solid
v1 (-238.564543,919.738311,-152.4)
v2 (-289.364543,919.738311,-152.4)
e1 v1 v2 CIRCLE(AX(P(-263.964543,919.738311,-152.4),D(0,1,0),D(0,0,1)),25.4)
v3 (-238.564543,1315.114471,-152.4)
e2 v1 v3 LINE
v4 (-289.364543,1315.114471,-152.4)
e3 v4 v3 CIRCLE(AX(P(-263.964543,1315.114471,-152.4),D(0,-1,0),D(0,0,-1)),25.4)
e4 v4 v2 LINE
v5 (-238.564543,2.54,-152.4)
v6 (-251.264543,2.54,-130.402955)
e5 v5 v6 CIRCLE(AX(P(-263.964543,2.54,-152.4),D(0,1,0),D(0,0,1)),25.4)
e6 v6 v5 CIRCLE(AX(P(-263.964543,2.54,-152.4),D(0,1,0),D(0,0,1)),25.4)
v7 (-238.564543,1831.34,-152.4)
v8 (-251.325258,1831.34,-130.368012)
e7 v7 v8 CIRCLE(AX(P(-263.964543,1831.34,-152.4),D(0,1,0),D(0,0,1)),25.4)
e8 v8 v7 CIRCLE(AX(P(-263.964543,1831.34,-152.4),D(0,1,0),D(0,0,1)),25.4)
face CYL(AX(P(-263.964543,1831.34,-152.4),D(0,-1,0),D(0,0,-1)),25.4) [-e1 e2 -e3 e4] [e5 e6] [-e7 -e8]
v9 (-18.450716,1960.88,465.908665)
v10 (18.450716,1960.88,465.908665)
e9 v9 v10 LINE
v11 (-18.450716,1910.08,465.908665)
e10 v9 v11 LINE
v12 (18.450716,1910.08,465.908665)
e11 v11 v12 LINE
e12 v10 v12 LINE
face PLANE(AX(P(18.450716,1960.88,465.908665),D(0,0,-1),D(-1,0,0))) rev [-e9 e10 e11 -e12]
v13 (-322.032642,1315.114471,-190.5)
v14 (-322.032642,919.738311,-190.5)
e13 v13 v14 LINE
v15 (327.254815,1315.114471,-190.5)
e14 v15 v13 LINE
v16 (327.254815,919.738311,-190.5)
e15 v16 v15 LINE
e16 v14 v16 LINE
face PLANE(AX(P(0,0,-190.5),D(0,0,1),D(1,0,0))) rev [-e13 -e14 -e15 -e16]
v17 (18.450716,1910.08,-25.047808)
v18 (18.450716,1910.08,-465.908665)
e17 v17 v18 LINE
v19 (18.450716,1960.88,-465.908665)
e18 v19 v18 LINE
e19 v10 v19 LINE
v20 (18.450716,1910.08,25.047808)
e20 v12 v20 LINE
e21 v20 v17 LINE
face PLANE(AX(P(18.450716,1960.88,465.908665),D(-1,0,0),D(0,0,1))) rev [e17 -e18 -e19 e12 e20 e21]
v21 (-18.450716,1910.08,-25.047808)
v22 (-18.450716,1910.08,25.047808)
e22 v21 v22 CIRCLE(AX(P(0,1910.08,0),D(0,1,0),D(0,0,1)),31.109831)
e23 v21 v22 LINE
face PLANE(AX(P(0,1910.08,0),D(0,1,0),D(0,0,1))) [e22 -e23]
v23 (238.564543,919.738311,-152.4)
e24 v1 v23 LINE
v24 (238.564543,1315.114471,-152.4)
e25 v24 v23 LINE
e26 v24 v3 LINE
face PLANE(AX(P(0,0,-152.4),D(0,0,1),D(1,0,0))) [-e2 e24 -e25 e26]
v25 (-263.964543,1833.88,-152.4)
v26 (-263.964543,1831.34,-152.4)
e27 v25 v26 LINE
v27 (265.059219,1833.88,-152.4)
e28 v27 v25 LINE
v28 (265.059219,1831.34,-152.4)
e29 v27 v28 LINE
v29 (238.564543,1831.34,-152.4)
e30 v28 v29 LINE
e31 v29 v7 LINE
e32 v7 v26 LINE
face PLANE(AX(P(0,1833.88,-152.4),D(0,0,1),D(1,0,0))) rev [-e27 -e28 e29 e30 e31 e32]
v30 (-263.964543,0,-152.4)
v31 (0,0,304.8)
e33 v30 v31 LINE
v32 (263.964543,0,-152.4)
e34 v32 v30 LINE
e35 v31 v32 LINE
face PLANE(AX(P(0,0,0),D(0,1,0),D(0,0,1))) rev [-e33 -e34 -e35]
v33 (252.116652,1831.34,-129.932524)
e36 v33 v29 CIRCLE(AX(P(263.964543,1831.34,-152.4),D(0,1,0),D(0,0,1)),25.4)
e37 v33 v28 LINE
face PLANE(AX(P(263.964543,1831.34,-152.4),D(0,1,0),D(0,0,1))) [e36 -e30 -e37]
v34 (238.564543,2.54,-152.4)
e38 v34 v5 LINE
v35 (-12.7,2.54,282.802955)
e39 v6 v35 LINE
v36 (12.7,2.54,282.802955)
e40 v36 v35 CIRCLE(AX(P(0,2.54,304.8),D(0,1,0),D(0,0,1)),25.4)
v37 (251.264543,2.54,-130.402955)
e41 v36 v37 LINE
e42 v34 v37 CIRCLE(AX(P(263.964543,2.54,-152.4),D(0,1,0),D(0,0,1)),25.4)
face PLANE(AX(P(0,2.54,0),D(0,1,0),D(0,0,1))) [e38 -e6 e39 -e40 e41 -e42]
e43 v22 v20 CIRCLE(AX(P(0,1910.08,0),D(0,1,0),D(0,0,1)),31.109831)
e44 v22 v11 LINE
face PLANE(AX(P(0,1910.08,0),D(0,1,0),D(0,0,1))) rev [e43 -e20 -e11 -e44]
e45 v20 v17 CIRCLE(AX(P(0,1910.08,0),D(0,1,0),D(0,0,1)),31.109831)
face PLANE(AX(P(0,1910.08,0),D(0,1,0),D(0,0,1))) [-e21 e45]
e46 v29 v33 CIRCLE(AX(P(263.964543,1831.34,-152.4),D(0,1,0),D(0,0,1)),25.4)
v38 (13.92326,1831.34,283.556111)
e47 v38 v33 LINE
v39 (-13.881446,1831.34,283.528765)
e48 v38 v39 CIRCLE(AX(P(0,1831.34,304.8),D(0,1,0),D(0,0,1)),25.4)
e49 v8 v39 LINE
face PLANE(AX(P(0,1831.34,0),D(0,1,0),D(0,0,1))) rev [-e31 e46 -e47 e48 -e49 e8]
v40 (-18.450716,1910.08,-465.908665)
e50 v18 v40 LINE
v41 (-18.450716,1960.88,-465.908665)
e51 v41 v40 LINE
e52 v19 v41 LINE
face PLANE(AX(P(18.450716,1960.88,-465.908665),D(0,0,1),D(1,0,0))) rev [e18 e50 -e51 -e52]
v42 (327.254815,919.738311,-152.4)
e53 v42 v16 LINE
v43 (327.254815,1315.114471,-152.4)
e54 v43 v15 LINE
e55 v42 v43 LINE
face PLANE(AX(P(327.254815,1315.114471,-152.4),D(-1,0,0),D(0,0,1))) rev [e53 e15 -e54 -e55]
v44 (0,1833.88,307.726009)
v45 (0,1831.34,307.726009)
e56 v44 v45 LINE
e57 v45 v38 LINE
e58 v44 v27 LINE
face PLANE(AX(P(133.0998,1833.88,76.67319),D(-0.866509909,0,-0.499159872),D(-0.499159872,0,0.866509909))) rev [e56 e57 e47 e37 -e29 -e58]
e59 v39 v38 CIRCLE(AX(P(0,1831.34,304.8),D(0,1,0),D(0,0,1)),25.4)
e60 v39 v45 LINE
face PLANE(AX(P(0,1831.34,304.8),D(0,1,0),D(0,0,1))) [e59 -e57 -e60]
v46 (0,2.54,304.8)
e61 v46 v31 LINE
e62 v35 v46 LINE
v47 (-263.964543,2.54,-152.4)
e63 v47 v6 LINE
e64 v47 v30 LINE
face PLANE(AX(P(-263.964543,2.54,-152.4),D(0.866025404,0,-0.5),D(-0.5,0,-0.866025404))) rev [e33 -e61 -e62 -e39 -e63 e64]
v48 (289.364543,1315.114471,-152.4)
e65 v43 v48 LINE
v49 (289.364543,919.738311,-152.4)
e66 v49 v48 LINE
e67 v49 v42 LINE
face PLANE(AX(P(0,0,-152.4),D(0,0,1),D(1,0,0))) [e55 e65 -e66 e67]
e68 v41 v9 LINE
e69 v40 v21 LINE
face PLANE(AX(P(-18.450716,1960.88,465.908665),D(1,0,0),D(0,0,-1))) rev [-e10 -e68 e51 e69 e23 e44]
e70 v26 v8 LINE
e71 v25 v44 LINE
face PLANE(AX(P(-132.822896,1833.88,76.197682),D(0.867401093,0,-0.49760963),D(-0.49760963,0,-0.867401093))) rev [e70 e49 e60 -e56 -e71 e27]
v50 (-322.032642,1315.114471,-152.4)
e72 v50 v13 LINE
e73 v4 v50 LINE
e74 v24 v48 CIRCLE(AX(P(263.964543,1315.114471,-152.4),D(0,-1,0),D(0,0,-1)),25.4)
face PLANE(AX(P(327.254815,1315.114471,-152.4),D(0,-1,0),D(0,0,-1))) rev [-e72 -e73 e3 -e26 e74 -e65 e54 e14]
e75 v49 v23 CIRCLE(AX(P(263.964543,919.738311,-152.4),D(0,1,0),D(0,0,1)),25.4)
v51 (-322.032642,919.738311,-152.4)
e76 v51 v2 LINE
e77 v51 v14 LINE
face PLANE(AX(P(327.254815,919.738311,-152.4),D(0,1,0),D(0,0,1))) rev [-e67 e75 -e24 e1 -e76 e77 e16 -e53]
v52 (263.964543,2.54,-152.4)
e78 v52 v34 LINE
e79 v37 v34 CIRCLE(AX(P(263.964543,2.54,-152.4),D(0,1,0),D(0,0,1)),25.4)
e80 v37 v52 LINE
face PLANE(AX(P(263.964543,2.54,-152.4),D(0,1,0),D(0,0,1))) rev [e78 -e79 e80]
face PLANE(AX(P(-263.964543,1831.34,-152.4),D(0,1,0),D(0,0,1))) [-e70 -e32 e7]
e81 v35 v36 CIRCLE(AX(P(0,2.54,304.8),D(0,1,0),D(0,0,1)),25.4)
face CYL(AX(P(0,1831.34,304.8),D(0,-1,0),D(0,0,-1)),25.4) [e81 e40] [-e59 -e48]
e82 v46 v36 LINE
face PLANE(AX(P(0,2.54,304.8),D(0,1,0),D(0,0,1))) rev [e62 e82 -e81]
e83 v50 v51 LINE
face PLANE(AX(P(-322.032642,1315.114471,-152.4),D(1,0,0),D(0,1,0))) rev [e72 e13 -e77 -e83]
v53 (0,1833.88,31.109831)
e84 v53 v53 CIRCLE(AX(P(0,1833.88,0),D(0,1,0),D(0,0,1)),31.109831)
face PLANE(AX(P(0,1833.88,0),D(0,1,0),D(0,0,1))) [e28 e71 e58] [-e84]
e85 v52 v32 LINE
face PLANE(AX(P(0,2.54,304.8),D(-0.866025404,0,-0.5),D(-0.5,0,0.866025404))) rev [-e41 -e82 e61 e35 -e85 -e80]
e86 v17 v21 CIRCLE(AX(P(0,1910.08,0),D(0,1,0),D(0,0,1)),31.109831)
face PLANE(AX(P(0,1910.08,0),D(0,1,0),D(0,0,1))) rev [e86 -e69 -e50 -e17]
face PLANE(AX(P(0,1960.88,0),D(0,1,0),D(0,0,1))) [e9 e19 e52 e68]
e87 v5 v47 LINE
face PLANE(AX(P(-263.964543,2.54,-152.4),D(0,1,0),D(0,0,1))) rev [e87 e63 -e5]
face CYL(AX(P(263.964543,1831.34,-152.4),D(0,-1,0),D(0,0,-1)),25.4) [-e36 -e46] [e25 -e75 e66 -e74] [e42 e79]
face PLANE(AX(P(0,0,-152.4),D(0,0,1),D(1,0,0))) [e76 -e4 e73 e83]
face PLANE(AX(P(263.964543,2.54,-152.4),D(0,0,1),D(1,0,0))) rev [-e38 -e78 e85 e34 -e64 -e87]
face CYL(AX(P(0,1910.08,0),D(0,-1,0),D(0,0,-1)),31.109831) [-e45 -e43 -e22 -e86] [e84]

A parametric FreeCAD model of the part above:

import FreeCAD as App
import Part
import Sketcher

V = App.Vector
Q = App.Units.Quantity


def add_polygon(sketch, points):
    """Adds a closed chain of lines whose ends are joined by coincident constraints."""
    first, n = sketch.GeometryCount, len(points)
    for a, b in zip(points, points[1:] + points[:1]):
        sketch.addGeometry(Part.LineSegment(App.Vector(*a, 0), App.Vector(*b, 0)), False)
    for i in range(n):
        sketch.addConstraint(Sketcher.Constraint("Coincident", first + i, 2, first + (i + 1) % n, 1))

doc = App.newDocument("Part")
params = doc.addObject("Spreadsheet::Sheet", "Params")
for row, (alias, value) in enumerate([
    ("pad1_length", "0.1 in"),
    ("sketch2_diameter", "2 in"),
    ("pad2_length", "72 in"),
    ("pad3_length", "0.1 in"),
    ("pad4_length", "3 in"),
    ("pad5_length", "2 in"),
    ("pad6_length", "1.5 in"),
], start=1):
    params.set(f"A{row}", alias)
    params.set(f"B{row}", "=" + value)
    params.setAlias(f"B{row}", alias)

body = doc.addObject("PartDesign::Body", "Body")

# Sketch on XZ plane
sketch1 = body.newObject("Sketcher::SketchObject", "Sketch")
sketch1.AttachmentSupport = (doc.getObject("XZ_Plane"), [""])
sketch1.MapMode = "FlatFace"
add_polygon(sketch1, [(0, 305), (264, -152), (-264, -152)])  # lines 0-2
sketch1.addConstraint([
    Sketcher.Constraint("Horizontal", 1),
    Sketcher.Constraint("PointOnObject", 2, 2, -2),
    Sketcher.Constraint("Equal", 0, 2),
    Sketcher.Constraint("DistanceY", 0, 2, -1, 1, Q("6 in")),
    Sketcher.Constraint("DistanceY", -1, 1, 2, 2, Q("12 in")),
    Sketcher.Constraint("Angle", 0, Q("-60 deg")),
])
pad1 = body.newObject("PartDesign::Pad", "Pad")
pad1.Profile = sketch1
pad1.setExpression("Length", "Params.pad1_length")
pad1.Reversed = True

# Sketch on XZ plane
sketch2 = body.newObject("Sketcher::SketchObject", "Sketch001")
sketch2.AttachmentSupport = (doc.getObject("XZ_Plane"), [""])
sketch2.MapMode = "FlatFace"
sketch2.AttachmentOffset = App.Placement(V(0, 0, -0.1 * 25.4), App.Rotation())
sketch2.addGeometry([
    Part.Circle(V(0, 305, 0), V(0, 0, 1), 25),
    Part.Circle(V(-264, -152, 0), V(0, 0, 1), 25),
    Part.Circle(V(264, -152, 0), V(0, 0, 1), 25),
], False)
sketch2.addConstraint([
    Sketcher.Constraint("Equal", 0, 1),
    Sketcher.Constraint("Equal", 1, 2),
    Sketcher.Constraint("Symmetric", 1, 3, 2, 3, -2),
    Sketcher.Constraint("PointOnObject", 0, 3, -2),
    Sketcher.Constraint("Diameter", 0, Q("2 in")),
    Sketcher.Constraint("DistanceY", -1, 1, 0, 3, Q("12 in")),
    Sketcher.Constraint("DistanceY", 1, 3, -1, 1, Q("6 in")),
    Sketcher.Constraint("DistanceX", 1, 3, -1, 1, 263.964543),
])
sketch2.setExpression("Constraints[4]", "Params.sketch2_diameter")
pad2 = body.newObject("PartDesign::Pad", "Pad001")
pad2.Profile = sketch2
pad2.setExpression("Length", "Params.pad2_length")
pad2.Reversed = True

# Sketch on XZ plane
sketch3 = body.newObject("Sketcher::SketchObject", "Sketch002")
sketch3.AttachmentSupport = (doc.getObject("XZ_Plane"), [""])
sketch3.MapMode = "FlatFace"
sketch3.AttachmentOffset = App.Placement(V(0, 0, -72.1 * 25.4), App.Rotation())
add_polygon(sketch3, [(-264, -152), (0, 308), (265, -152)])  # lines 0-2
sketch3.addConstraint([
    Sketcher.Constraint("Horizontal", 2),
    Sketcher.Constraint("PointOnObject", 0, 2, -2),
    Sketcher.Constraint("DistanceY", 1, 2, -1, 1, Q("6 in")),
    Sketcher.Constraint("Distance", 0, 530.465102),
    Sketcher.Constraint("Distance", 1, 531.010672),
    Sketcher.Constraint("DistanceX", 2, 2, 2, 1, 529.023762),
])
pad3 = body.newObject("PartDesign::Pad", "Pad002")
pad3.Profile = sketch3
pad3.setExpression("Length", "Params.pad3_length")
pad3.Reversed = True

# Sketch on XZ plane
sketch4 = body.newObject("Sketcher::SketchObject", "Sketch003")
sketch4.AttachmentSupport = (doc.getObject("XZ_Plane"), [""])
sketch4.MapMode = "FlatFace"
sketch4.AttachmentOffset = App.Placement(V(0, 0, -72.2 * 25.4), App.Rotation())
sketch4.addGeometry(Part.Circle(V(0, 0, 0), V(0, 0, 1), 31), False)
sketch4.addConstraint([
    Sketcher.Constraint("Coincident", 0, 3, -1, 1),
    Sketcher.Constraint("Diameter", 0, 62.219662),
])
pad4 = body.newObject("PartDesign::Pad", "Pad003")
pad4.Profile = sketch4
pad4.setExpression("Length", "Params.pad4_length")
pad4.Reversed = True

# Sketch on XZ plane
sketch5 = body.newObject("Sketcher::SketchObject", "Sketch004")
sketch5.AttachmentSupport = (doc.getObject("XZ_Plane"), [""])
sketch5.MapMode = "FlatFace"
sketch5.AttachmentOffset = App.Placement(V(0, 0, -75.2 * 25.4), App.Rotation())
add_polygon(sketch5, [(-18, -466), (-18, 466), (18, 466), (18, -466)])  # lines 0-3
sketch5.addConstraint([
    Sketcher.Constraint("Vertical", 0),
    Sketcher.Constraint("Horizontal", 1),
    Sketcher.Constraint("Vertical", 2),
    Sketcher.Constraint("Horizontal", 3),
    Sketcher.Constraint("Symmetric", 0, 2, 2, 2, -1, 1),
    Sketcher.Constraint("DistanceX", 1, 1, 1, 2, 36.901432),
    Sketcher.Constraint("DistanceY", 0, 1, 0, 2, 931.81733),
])
pad5 = body.newObject("PartDesign::Pad", "Pad004")
pad5.Profile = sketch5
pad5.setExpression("Length", "Params.pad5_length")
pad5.Reversed = True

# Sketch on XY plane
sketch6 = body.newObject("Sketcher::SketchObject", "Sketch005")
sketch6.AttachmentSupport = (doc.getObject("XY_Plane"), [""])
sketch6.MapMode = "FlatFace"
sketch6.AttachmentOffset = App.Placement(V(0, 0, -6 * 25.4), App.Rotation())
add_polygon(sketch6, [(327, 1315), (-322, 1315), (-322, 920), (327, 920)])  # lines 0-3
sketch6.addConstraint([
    Sketcher.Constraint("Horizontal", 0),
    Sketcher.Constraint("Vertical", 1),
    Sketcher.Constraint("Horizontal", 2),
    Sketcher.Constraint("Vertical", 3),
    Sketcher.Constraint("DistanceY", 1, 2, 1, 1, 395.376161),
    Sketcher.Constraint("DistanceX", 0, 2, 0, 1, 649.287456),
    Sketcher.Constraint("DistanceX", 0, 2, -1, 1, 322.032642),
    Sketcher.Constraint("DistanceY", -1, 1, 0, 2, 1315.114471),
])
pad6 = body.newObject("PartDesign::Pad", "Pad005")
pad6.Profile = sketch6
pad6.setExpression("Length", "Params.pad6_length")
pad6.Reversed = True

doc.recompute()
